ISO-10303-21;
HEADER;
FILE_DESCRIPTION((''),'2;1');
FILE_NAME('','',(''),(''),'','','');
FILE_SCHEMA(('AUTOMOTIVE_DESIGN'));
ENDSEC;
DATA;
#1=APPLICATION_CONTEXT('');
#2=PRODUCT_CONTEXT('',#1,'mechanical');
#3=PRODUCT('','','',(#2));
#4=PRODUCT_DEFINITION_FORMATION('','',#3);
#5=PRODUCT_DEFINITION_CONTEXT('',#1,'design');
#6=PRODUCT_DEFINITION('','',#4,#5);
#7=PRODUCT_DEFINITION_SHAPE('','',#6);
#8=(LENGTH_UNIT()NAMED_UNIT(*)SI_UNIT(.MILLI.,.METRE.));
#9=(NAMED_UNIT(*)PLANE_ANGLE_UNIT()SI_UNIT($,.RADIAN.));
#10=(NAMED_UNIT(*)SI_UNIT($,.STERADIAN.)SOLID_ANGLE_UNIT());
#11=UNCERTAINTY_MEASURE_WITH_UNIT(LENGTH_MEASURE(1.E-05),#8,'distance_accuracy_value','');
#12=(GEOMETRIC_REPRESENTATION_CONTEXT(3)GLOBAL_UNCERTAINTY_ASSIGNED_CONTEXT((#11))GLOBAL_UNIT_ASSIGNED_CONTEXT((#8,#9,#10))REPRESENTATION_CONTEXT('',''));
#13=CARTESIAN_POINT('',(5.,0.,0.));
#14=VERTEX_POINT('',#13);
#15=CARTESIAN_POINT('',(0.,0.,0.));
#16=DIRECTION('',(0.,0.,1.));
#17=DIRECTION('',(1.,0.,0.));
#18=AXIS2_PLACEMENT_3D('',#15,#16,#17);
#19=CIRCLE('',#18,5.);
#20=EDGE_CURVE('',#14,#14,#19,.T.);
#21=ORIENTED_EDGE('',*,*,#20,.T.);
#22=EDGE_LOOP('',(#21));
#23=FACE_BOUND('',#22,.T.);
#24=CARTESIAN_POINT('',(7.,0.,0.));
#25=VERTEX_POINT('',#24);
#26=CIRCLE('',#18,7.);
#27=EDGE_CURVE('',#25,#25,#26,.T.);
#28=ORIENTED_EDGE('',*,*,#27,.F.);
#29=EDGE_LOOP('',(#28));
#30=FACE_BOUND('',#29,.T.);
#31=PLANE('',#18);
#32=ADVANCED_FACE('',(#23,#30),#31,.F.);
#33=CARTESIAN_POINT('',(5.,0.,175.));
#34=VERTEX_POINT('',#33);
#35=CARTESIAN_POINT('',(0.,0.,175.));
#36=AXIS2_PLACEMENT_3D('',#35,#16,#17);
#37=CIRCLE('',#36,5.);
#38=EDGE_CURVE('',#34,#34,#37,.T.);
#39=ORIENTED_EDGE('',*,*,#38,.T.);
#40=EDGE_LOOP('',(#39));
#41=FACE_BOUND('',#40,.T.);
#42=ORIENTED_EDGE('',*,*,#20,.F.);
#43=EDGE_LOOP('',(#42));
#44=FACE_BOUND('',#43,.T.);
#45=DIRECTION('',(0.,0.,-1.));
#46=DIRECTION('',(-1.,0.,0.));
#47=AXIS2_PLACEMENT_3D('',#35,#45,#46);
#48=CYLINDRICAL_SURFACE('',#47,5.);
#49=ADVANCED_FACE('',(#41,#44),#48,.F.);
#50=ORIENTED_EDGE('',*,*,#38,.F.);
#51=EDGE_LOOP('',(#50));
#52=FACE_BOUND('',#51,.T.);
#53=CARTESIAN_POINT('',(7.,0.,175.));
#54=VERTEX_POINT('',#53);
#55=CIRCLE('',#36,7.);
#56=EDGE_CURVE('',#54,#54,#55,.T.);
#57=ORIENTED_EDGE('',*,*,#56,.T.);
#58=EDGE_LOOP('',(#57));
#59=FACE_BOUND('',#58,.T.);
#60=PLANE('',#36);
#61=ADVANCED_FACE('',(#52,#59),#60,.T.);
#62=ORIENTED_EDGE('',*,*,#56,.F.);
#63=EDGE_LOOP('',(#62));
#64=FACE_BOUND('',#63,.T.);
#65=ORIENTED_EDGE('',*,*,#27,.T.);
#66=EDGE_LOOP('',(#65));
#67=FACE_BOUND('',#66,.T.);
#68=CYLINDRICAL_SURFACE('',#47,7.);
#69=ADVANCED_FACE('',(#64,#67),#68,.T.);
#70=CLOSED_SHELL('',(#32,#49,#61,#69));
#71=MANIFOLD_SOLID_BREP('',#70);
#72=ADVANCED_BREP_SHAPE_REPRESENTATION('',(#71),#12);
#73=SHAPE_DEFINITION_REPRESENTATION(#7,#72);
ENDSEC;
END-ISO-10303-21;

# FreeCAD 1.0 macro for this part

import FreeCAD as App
import Part
import Sketcher

V = App.Vector

doc = App.newDocument("Part")
body = doc.addObject("PartDesign::Body", "Body")

sketch1 = body.newObject("Sketcher::SketchObject", "Sketch")
sketch1.AttachmentSupport = (doc.getObject("XY_Plane"), [""])
sketch1.MapMode = "FlatFace"
sketch1.addGeometry([
    Part.Circle(V(0, 0, 0), V(0, 0, 1), 7),
    Part.Circle(V(0, 0, 0), V(0, 0, 1), 5),
], False)
sketch1.addConstraint([
    Sketcher.Constraint("Coincident", 0, 3, -1, 1),
    Sketcher.Constraint("Coincident", 1, 3, -1, 1),
    Sketcher.Constraint("Diameter", 0, 14.0),
    Sketcher.Constraint("Diameter", 1, 10.0),
])
pad1 = body.newObject("PartDesign::Pad", "Pad")
pad1.Profile = sketch1
pad1.Length = 175

doc.recompute()
